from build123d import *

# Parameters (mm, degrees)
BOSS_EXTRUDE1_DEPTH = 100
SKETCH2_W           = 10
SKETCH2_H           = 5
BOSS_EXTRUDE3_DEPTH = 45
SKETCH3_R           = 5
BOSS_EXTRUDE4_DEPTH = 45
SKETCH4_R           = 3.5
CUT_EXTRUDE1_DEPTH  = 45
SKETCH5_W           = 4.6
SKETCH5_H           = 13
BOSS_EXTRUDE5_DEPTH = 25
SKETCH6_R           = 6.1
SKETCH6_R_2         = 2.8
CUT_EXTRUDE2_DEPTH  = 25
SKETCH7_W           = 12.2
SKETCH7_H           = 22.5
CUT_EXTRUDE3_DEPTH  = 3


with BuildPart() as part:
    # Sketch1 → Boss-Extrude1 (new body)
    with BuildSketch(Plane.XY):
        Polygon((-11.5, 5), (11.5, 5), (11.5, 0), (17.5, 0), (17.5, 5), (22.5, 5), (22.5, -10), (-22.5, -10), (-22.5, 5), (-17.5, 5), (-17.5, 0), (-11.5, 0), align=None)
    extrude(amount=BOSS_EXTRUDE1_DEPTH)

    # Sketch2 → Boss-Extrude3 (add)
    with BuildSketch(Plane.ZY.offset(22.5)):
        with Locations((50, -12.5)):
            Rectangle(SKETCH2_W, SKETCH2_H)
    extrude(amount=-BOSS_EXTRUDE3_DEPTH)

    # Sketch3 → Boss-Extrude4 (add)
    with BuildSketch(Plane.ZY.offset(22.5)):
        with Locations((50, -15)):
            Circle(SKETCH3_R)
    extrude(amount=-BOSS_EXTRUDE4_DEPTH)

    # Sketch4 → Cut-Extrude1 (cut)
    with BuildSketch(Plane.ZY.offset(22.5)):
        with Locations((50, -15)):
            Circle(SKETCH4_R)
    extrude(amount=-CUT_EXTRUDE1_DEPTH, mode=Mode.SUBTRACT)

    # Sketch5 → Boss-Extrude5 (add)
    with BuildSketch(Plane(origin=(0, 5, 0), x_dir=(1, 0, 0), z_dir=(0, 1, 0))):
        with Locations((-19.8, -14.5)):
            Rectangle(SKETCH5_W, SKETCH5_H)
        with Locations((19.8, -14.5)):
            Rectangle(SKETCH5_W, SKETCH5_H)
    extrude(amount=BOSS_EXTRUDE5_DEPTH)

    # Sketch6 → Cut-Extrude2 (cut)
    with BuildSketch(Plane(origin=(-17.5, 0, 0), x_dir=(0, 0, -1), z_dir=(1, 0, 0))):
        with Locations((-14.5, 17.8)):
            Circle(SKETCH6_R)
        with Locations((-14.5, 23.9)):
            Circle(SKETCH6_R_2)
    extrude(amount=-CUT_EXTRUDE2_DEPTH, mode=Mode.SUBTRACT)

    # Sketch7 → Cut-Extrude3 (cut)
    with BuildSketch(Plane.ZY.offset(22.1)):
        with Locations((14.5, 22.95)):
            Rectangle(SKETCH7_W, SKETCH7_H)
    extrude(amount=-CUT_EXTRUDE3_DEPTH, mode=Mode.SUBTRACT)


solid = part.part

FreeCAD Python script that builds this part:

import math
import FreeCAD as App
import Part
import Sketcher


def add_polygon(sketch, points):
    """Adds a closed chain of lines whose ends are joined by coincident constraints."""
    first, n = sketch.GeometryCount, len(points)
    for a, b in zip(points, points[1:] + points[:1]):
        sketch.addGeometry(Part.LineSegment(App.Vector(*a, 0), App.Vector(*b, 0)), False)
    for i in range(n):
        sketch.addConstraint(Sketcher.Constraint("Coincident", first + i, 2, first + (i + 1) % n, 1))

doc = App.newDocument("Part")
body = doc.addObject("PartDesign::Body", "Body")

# Sketch on XY plane
sketch1 = body.newObject("Sketcher::SketchObject", "Sketch")
sketch1.AttachmentSupport = (doc.getObject("XY_Plane"), [""])
sketch1.MapMode = "FlatFace"
add_polygon(sketch1, [(11.5, 5), (-11.5, 5), (-11.5, 0), (-17.5, 0), (-17.5, 5), (-22.5, 5), (-22.5, -10), (22.5, -10), (22.5, 5), (17.5, 5), (17.5, 0), (11.5, 0)])  # lines 0-11
sketch1.addConstraint(Sketcher.Constraint("Horizontal", 0))
sketch1.addConstraint(Sketcher.Constraint("Vertical", 1))
sketch1.addConstraint(Sketcher.Constraint("Horizontal", 2))
sketch1.addConstraint(Sketcher.Constraint("Vertical", 3))
sketch1.addConstraint(Sketcher.Constraint("Horizontal", 4))
sketch1.addConstraint(Sketcher.Constraint("Vertical", 5))
sketch1.addConstraint(Sketcher.Constraint("Horizontal", 6))
sketch1.addConstraint(Sketcher.Constraint("Vertical", 7))
sketch1.addConstraint(Sketcher.Constraint("Horizontal", 8))
sketch1.addConstraint(Sketcher.Constraint("Vertical", 9))
sketch1.addConstraint(Sketcher.Constraint("Horizontal", 10))
sketch1.addConstraint(Sketcher.Constraint("Vertical", 11))
sketch1.addConstraint(Sketcher.Constraint("Symmetric", 2, 2, 9, 2, -1, 1))
sketch1.addConstraint(Sketcher.Constraint("Symmetric", 4, 2, 7, 2, -2))
sketch1.addConstraint(Sketcher.Constraint("Symmetric", 1, 2, 10, 2, -2))
sketch1.addConstraint(Sketcher.Constraint("Horizontal", 0, 2, 3, 2))
sketch1.addConstraint(Sketcher.Constraint("Equal", 8, 1))
sketch1.addConstraint(Sketcher.Constraint("DistanceX", 0, 2, 0, 1, 23.0))
sketch1.addConstraint(Sketcher.Constraint("DistanceX", 2, 2, 2, 1, 6.0))
sketch1.addConstraint(Sketcher.Constraint("DistanceX", 4, 2, 4, 1, 5.0))
sketch1.addConstraint(Sketcher.Constraint("DistanceY", 5, 2, 5, 1, 15.0))
pad1 = body.newObject("PartDesign::Pad", "Pad")
pad1.Profile = sketch1
pad1.Length = 100

# Sketch on YZ plane
sketch2 = body.newObject("Sketcher::SketchObject", "Sketch001")
sketch2.AttachmentSupport = (doc.getObject("YZ_Plane"), [""])
sketch2.MapMode = "FlatFace"
sketch2.AttachmentOffset = App.Placement(App.Vector(0, 0, -22.5), App.Rotation())
add_polygon(sketch2, [(-10, 45), (-15, 45), (-15, 55), (-10, 55)])  # lines 0-3
sketch2.addConstraint(Sketcher.Constraint("Horizontal", 0))
sketch2.addConstraint(Sketcher.Constraint("Vertical", 1))
sketch2.addConstraint(Sketcher.Constraint("Horizontal", 2))
sketch2.addConstraint(Sketcher.Constraint("Vertical", 3))
sketch2.addConstraint(Sketcher.Constraint("DistanceX", 0, 2, 0, 1, 5.0))
sketch2.addConstraint(Sketcher.Constraint("DistanceY", 1, 1, 1, 2, 10.0))
sketch2.addConstraint(Sketcher.Constraint("DistanceX", 0, 2, -1, 1, 15.0))
sketch2.addConstraint(Sketcher.Constraint("DistanceY", -1, 1, 0, 2, 45.0))
pad2 = body.newObject("PartDesign::Pad", "Pad001")
pad2.Profile = sketch2
pad2.Length = 45

# Sketch on YZ plane
sketch3 = body.newObject("Sketcher::SketchObject", "Sketch002")
sketch3.AttachmentSupport = (doc.getObject("YZ_Plane"), [""])
sketch3.MapMode = "FlatFace"
sketch3.AttachmentOffset = App.Placement(App.Vector(0, 0, -22.5), App.Rotation())
sketch3.addGeometry(Part.Circle(App.Vector(-15, 50, 0), App.Vector(0, 0, 1), 5), False)
sketch3.addConstraint(Sketcher.Constraint("Diameter", 0, 10.0))
sketch3.addConstraint(Sketcher.Constraint("DistanceX", 0, 3, -1, 1, 15.0))
sketch3.addConstraint(Sketcher.Constraint("DistanceY", -1, 1, 0, 3, 50.0))
pad3 = body.newObject("PartDesign::Pad", "Pad002")
pad3.Profile = sketch3
pad3.Length = 45

# Sketch on YZ plane
sketch4 = body.newObject("Sketcher::SketchObject", "Sketch003")
sketch4.AttachmentSupport = (doc.getObject("YZ_Plane"), [""])
sketch4.MapMode = "FlatFace"
sketch4.AttachmentOffset = App.Placement(App.Vector(0, 0, -22.5), App.Rotation())
sketch4.addGeometry(Part.Circle(App.Vector(-15, 50, 0), App.Vector(0, 0, 1), 3.5), False)
sketch4.addConstraint(Sketcher.Constraint("Diameter", 0, 7.0))
sketch4.addConstraint(Sketcher.Constraint("DistanceX", 0, 3, -1, 1, 15.0))
sketch4.addConstraint(Sketcher.Constraint("DistanceY", -1, 1, 0, 3, 50.0))
pocket1 = body.newObject("PartDesign::Pocket", "Pocket")
pocket1.Profile = sketch4
pocket1.Length = 45
pocket1.Reversed = True

# Sketch on XZ plane
sketch5 = body.newObject("Sketcher::SketchObject", "Sketch004")
sketch5.AttachmentSupport = (doc.getObject("XZ_Plane"), [""])
sketch5.MapMode = "FlatFace"
sketch5.AttachmentOffset = App.Placement(App.Vector(0, 0, -5), App.Rotation())
add_polygon(sketch5, [(-22.1, 8), (-22.1, 21), (-17.5, 21), (-17.5, 8)])  # lines 0-3
add_polygon(sketch5, [(17.5, 8), (17.5, 21), (22.1, 21), (22.1, 8)])  # lines 4-7
sketch5.addConstraint(Sketcher.Constraint("Vertical", 0))
sketch5.addConstraint(Sketcher.Constraint("Horizontal", 1))
sketch5.addConstraint(Sketcher.Constraint("Vertical", 2))
sketch5.addConstraint(Sketcher.Constraint("Horizontal", 3))
sketch5.addConstraint(Sketcher.Constraint("Vertical", 4))
sketch5.addConstraint(Sketcher.Constraint("Horizontal", 5))
sketch5.addConstraint(Sketcher.Constraint("Vertical", 6))
sketch5.addConstraint(Sketcher.Constraint("Horizontal", 7))
sketch5.addConstraint(Sketcher.Constraint("Symmetric", 1, 2, 4, 2, -2))
sketch5.addConstraint(Sketcher.Constraint("Symmetric", 3, 2, 6, 2, -2))
sketch5.addConstraint(Sketcher.Constraint("DistanceY", 0, 1, 0, 2, 13.0))
sketch5.addConstraint(Sketcher.Constraint("DistanceX", 1, 1, 1, 2, 4.6))
sketch5.addConstraint(Sketcher.Constraint("DistanceY", -1, 1, 0, 2, 21.0))
sketch5.addConstraint(Sketcher.Constraint("DistanceX", 1, 2, 4, 2, 35.0))
pad4 = body.newObject("PartDesign::Pad", "Pad003")
pad4.Profile = sketch5
pad4.Length = 25
pad4.Reversed = True

# Sketch on YZ plane
sketch6 = body.newObject("Sketcher::SketchObject", "Sketch005")
sketch6.AttachmentSupport = (doc.getObject("YZ_Plane"), [""])
sketch6.MapMode = "FlatFace"
sketch6.AttachmentOffset = App.Placement(App.Vector(0, 0, -17.5), App.Rotation())
sketch6.addGeometry(Part.ArcOfCircle(Part.Circle(App.Vector(17.8, 14.5, 0), App.Vector(0, 0, 1), 6.1), math.radians(26.536238), math.radians(333.463762)), False)
sketch6.addGeometry(Part.ArcOfCircle(Part.Circle(App.Vector(23.9, 14.5, 0), App.Vector(0, 0, 1), 2.8), math.radians(-103.268119), math.radians(103.268119)), False)
sketch6.addConstraint(Sketcher.Constraint("Coincident", 0, 1, 1, 2))
sketch6.addConstraint(Sketcher.Constraint("Coincident", 1, 1, 0, 2))
sketch6.addConstraint(Sketcher.Constraint("Horizontal", 0, 3, 1, 3))
sketch6.addConstraint(Sketcher.Constraint("Radius", 0, 6.1))
sketch6.addConstraint(Sketcher.Constraint("Radius", 1, 2.8))
sketch6.addConstraint(Sketcher.Constraint("DistanceX", -1, 1, 0, 3, 17.8))
sketch6.addConstraint(Sketcher.Constraint("DistanceY", -1, 1, 0, 3, 14.5))
sketch6.addConstraint(Sketcher.Constraint("DistanceX", -1, 1, 1, 3, 23.9))
pocket2 = body.newObject("PartDesign::Pocket", "Pocket001")
pocket2.Profile = sketch6
pocket2.Length = 25

# Sketch on YZ plane
sketch7 = body.newObject("Sketcher::SketchObject", "Sketch006")
sketch7.AttachmentSupport = (doc.getObject("YZ_Plane"), [""])
sketch7.MapMode = "FlatFace"
sketch7.AttachmentOffset = App.Placement(App.Vector(0, 0, -22.1), App.Rotation())
add_polygon(sketch7, [(34.2, 8.4), (11.7, 8.4), (11.7, 20.6), (34.2, 20.6)])  # lines 0-3
sketch7.addConstraint(Sketcher.Constraint("Horizontal", 0))
sketch7.addConstraint(Sketcher.Constraint("Vertical", 1))
sketch7.addConstraint(Sketcher.Constraint("Horizontal", 2))
sketch7.addConstraint(Sketcher.Constraint("Vertical", 3))
sketch7.addConstraint(Sketcher.Constraint("DistanceX", 0, 2, 0, 1, 22.5))
sketch7.addConstraint(Sketcher.Constraint("DistanceY", 1, 1, 1, 2, 12.2))
sketch7.addConstraint(Sketcher.Constraint("DistanceX", -1, 1, 0, 2, 11.7))
sketch7.addConstraint(Sketcher.Constraint("DistanceY", -1, 1, 0, 2, 8.4))
pocket3 = body.newObject("PartDesign::Pocket", "Pocket002")
pocket3.Profile = sketch7
pocket3.Length = 3
pocket3.Reversed = True

doc.recompute()
